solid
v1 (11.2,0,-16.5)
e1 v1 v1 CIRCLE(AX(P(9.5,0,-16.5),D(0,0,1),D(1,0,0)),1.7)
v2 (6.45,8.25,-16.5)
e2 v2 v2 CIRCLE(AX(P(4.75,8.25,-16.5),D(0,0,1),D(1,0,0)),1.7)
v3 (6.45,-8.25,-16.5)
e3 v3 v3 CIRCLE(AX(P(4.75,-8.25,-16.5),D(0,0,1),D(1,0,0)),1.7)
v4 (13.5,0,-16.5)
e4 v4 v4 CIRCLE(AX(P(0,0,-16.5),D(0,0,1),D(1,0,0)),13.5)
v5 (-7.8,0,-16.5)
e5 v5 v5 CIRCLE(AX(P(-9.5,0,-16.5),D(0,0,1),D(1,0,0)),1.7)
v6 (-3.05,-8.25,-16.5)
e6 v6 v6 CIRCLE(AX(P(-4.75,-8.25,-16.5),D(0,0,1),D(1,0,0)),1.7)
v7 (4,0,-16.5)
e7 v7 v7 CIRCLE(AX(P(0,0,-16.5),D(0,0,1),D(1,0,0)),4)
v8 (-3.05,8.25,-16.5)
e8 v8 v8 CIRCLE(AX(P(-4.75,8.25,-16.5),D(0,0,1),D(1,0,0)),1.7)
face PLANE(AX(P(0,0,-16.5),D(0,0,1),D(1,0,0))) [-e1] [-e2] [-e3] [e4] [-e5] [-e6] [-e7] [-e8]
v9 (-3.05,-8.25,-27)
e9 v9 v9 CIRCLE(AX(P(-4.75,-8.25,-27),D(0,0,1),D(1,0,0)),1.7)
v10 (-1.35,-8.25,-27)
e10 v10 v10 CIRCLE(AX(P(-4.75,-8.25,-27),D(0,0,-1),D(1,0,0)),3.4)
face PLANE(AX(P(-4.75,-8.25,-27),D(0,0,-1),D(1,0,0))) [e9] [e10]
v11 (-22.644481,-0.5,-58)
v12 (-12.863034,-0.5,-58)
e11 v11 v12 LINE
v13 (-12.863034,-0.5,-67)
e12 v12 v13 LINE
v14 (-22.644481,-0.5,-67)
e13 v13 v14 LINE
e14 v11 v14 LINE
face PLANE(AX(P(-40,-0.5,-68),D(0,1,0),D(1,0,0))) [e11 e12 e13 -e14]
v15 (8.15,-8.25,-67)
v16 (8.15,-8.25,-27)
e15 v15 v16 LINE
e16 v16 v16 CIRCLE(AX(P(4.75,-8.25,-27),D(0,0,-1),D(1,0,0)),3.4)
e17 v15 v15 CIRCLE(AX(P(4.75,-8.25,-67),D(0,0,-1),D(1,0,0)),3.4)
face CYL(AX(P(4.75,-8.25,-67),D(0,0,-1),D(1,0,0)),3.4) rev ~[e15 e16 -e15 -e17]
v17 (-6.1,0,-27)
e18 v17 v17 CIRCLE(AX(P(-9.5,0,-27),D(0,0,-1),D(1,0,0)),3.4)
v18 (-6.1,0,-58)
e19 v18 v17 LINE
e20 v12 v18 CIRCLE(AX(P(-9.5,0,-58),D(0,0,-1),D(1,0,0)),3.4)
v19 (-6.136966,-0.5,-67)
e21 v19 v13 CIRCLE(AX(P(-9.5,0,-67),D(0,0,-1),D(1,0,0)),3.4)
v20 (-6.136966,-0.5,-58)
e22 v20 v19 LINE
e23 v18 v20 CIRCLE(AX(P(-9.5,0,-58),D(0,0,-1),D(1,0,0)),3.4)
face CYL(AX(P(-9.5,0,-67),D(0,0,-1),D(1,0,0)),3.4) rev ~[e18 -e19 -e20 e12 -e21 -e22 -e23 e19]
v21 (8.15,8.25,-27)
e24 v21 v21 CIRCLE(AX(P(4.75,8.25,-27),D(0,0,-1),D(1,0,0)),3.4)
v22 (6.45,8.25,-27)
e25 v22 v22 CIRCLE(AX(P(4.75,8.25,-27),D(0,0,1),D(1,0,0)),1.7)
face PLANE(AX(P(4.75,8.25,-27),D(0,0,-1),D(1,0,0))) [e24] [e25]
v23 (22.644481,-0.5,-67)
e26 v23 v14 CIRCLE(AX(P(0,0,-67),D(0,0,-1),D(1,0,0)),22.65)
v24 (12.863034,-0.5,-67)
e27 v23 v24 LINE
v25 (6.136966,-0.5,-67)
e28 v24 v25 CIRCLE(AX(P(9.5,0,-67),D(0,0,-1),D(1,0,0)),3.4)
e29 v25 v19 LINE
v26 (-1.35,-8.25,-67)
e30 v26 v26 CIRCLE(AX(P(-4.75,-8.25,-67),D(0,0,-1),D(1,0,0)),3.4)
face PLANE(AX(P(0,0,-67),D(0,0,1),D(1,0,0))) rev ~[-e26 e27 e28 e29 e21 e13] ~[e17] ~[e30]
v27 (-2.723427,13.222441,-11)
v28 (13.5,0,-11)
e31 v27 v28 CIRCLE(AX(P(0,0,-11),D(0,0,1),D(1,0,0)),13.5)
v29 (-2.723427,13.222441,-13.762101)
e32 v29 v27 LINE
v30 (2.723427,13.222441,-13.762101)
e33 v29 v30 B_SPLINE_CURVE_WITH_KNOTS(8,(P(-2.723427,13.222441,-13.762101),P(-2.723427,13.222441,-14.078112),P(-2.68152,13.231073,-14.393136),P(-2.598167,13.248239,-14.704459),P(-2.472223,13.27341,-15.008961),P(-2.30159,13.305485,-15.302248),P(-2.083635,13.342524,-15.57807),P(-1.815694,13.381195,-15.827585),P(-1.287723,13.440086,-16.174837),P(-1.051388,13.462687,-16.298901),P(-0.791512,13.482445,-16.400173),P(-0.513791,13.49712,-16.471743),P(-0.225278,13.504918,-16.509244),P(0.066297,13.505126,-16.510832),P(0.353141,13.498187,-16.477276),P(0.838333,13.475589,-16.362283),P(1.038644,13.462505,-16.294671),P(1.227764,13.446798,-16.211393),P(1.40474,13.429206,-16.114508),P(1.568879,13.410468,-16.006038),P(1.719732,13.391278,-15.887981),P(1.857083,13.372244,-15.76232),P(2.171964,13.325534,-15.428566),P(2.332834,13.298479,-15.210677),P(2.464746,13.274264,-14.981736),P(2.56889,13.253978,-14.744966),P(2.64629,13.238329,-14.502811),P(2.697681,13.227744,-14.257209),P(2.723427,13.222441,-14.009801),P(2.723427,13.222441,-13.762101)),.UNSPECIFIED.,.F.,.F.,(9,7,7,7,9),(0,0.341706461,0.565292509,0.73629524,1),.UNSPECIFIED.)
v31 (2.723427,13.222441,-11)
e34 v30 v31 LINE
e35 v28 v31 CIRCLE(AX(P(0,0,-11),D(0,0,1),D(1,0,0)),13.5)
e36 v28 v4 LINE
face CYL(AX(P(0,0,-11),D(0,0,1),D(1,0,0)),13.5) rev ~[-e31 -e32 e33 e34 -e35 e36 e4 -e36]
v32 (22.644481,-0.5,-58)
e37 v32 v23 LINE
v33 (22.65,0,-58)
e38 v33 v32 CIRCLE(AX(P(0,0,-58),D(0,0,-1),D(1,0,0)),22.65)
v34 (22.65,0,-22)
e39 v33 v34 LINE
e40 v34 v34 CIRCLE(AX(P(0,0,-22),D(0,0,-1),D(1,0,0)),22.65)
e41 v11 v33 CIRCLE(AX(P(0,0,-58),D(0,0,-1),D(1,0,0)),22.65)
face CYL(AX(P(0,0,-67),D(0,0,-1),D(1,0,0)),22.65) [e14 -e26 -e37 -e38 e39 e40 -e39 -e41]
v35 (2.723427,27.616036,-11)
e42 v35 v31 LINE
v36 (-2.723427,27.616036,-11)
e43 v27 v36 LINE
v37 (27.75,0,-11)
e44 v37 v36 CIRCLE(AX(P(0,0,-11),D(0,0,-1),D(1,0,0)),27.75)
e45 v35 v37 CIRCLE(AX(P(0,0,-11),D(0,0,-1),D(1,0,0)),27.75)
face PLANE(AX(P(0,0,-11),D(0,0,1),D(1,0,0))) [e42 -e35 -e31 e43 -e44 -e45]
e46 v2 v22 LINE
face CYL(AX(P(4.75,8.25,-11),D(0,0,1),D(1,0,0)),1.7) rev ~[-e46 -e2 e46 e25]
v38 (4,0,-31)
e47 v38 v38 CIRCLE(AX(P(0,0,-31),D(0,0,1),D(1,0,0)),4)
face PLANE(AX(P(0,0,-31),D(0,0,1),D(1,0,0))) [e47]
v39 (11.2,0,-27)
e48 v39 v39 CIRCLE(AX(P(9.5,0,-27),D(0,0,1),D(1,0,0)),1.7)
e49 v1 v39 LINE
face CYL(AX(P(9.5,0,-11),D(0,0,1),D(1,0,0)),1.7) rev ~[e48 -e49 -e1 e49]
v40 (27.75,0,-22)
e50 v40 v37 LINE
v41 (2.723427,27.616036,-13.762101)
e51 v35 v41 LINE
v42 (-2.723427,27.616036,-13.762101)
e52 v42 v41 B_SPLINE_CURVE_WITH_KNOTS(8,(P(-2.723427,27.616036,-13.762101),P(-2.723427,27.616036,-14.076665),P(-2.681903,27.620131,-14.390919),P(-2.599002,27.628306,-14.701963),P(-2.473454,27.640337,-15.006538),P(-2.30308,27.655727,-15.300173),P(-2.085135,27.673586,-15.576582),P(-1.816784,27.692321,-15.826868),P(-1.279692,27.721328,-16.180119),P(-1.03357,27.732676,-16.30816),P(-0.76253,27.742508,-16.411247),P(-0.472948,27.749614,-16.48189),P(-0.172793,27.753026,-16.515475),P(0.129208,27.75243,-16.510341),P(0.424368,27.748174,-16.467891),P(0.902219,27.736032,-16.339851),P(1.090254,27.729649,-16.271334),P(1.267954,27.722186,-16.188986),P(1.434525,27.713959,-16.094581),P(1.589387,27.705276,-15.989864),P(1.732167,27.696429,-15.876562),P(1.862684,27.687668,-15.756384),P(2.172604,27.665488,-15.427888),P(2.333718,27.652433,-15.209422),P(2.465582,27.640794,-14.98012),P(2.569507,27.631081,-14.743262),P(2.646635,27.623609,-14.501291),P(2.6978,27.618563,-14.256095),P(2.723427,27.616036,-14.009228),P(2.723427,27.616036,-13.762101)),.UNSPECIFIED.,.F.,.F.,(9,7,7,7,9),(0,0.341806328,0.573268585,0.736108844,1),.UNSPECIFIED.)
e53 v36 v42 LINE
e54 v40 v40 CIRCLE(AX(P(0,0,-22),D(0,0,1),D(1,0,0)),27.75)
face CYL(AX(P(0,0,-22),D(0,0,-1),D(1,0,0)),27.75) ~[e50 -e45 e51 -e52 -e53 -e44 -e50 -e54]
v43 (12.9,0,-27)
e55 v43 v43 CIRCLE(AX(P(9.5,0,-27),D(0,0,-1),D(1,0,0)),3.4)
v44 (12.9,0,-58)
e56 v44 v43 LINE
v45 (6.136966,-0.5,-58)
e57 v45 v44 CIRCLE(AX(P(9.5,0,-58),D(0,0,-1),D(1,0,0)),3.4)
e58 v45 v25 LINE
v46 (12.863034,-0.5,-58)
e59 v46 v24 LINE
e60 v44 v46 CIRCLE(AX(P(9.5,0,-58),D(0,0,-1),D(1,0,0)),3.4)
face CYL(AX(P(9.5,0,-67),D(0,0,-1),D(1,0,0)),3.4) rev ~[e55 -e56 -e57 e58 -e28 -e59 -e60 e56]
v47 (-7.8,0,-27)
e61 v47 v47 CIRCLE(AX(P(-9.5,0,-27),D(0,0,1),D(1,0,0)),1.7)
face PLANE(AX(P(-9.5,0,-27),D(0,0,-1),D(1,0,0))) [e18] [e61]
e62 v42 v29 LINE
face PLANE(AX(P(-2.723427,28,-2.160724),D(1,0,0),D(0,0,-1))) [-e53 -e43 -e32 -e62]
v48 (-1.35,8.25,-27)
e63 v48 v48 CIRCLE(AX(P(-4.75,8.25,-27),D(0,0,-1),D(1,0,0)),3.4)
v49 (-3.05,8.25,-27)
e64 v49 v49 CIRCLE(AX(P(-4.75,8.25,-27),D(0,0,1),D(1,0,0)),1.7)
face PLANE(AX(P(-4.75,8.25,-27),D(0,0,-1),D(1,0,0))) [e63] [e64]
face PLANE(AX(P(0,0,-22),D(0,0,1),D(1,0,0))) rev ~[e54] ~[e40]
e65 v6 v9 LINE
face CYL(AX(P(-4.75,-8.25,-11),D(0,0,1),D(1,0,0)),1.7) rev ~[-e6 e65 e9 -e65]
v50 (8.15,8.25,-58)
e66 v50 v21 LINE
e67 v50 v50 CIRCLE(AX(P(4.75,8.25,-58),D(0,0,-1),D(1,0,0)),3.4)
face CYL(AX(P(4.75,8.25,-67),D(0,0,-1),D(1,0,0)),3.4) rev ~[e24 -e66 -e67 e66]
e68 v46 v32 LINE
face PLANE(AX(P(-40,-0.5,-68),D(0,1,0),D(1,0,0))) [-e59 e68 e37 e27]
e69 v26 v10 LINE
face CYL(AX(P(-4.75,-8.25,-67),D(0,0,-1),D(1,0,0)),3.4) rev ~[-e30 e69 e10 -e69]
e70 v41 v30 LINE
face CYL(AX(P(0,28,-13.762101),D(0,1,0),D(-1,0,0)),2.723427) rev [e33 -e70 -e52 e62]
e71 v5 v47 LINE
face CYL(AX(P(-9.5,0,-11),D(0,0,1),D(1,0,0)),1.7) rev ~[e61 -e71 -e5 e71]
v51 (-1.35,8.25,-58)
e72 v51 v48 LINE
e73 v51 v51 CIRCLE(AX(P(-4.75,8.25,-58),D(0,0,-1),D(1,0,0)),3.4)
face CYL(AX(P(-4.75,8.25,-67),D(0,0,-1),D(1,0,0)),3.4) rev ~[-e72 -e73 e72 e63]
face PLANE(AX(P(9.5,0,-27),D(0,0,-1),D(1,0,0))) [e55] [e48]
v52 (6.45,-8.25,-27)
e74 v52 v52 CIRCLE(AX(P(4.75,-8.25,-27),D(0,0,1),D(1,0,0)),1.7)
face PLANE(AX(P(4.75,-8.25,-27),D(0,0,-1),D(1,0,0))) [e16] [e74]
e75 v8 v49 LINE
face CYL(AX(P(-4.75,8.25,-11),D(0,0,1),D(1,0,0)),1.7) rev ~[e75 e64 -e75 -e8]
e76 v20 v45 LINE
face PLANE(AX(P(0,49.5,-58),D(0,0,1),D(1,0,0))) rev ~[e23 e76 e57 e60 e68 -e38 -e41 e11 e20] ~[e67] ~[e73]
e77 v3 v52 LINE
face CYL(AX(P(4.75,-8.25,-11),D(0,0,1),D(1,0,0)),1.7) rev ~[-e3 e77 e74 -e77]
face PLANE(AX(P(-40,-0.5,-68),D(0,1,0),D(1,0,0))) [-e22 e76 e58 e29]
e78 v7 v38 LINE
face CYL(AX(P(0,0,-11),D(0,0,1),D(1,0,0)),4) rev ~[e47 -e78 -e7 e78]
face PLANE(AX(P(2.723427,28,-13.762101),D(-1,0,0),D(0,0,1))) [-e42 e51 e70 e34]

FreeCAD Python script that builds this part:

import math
import FreeCAD as App
import Part
import Sketcher
Q = App.Units.Quantity


def add_polygon(sketch, points):
    """Adds a closed chain of lines whose ends are joined by coincident constraints."""
    first, n = sketch.GeometryCount, len(points)
    for a, b in zip(points, points[1:] + points[:1]):
        sketch.addGeometry(Part.LineSegment(App.Vector(*a, 0), App.Vector(*b, 0)), False)
    for i in range(n):
        sketch.addConstraint(Sketcher.Constraint("Coincident", first + i, 2, first + (i + 1) % n, 1))

doc = App.newDocument("Part")
body = doc.addObject("PartDesign::Body", "Body")

sketch1 = body.newObject("Sketcher::SketchObject", "Sketch")
sketch1.AttachmentSupport = (doc.getObject("XY_Plane"), [""])
sketch1.MapMode = "FlatFace"
sketch1.AttachmentOffset = App.Placement(App.Vector(0, 0, -1), App.Rotation())
add_polygon(sketch1, [(-40, 99.5), (-40, -0.5), (40, -0.5), (40, 99.5)])
sketch1.addConstraint(Sketcher.Constraint("Vertical", 0))
sketch1.addConstraint(Sketcher.Constraint("Horizontal", 1))
sketch1.addConstraint(Sketcher.Constraint("Vertical", 2))
sketch1.addConstraint(Sketcher.Constraint("Horizontal", 3))
sketch1.addConstraint(Sketcher.Constraint("DistanceX", 1, 1, 1, 2, Q("80 mm")))
sketch1.addConstraint(Sketcher.Constraint("DistanceY", 0, 2, 0, 1, Q("100 mm")))
sketch1.addConstraint(Sketcher.Constraint("DistanceX", 0, 2, -1, 1, Q("40 mm")))
sketch1.addConstraint(Sketcher.Constraint("DistanceY", 0, 2, -1, 1, Q("0.5 mm")))
pad1 = body.newObject("PartDesign::Pad", "Pad")
pad1.Profile = sketch1
pad1.Length = 10
body2 = doc.addObject("PartDesign::Body", "Body001")

sketch2 = body2.newObject("Sketcher::SketchObject", "Sketch001")
sketch2.AttachmentSupport = (doc.getObject("XY_Plane001"), [""])
sketch2.MapMode = "FlatFace"
add_polygon(sketch2, [(-5, 11.536842), (-5, 1.536842), (5, 1.536842), (5, 11.536842)])
sketch2.addConstraint(Sketcher.Constraint("Vertical", 0))
sketch2.addConstraint(Sketcher.Constraint("Horizontal", 1))
sketch2.addConstraint(Sketcher.Constraint("Vertical", 2))
sketch2.addConstraint(Sketcher.Constraint("Horizontal", 3))
sketch2.addConstraint(Sketcher.Constraint("Equal", 3, 0))
sketch2.addConstraint(Sketcher.Constraint("DistanceX", 1, 1, 1, 2, Q("10 mm")))
sketch2.addConstraint(Sketcher.Constraint("DistanceX", 0, 2, -1, 1, Q("5 mm")))
sketch2.addConstraint(Sketcher.Constraint("DistanceY", -1, 1, 0, 2, Q("1.536842 mm")))
pad2 = body2.newObject("PartDesign::Pad", "Pad001")
pad2.Profile = sketch2
pad2.Length = 10.8
body3 = doc.addObject("PartDesign::Body", "Body002")

sketch3 = body3.newObject("Sketcher::SketchObject", "Sketch002")
sketch3.AttachmentSupport = (doc.getObject("XY_Plane002"), [""])
sketch3.MapMode = "FlatFace"
sketch3.addGeometry(Part.Circle(App.Vector(0, 0, 0), App.Vector(0, 0, 1), 2.15), False)
sketch3.addConstraint(Sketcher.Constraint("Coincident", 0, 3, -1, 1))
sketch3.addConstraint(Sketcher.Constraint("Diameter", 0, Q("4.3 mm")))
pad3 = body3.newObject("PartDesign::Pad", "Pad002")
pad3.Profile = sketch3
pad3.Length = 10.8
doc.recompute()

boolean = body3.newObject("PartDesign::Boolean", "Boolean")
boolean.Type = "Cut"
boolean.addObjects([body2])
body4 = doc.addObject("PartDesign::Body", "Body003")
doc.recompute()

body3.Placement = App.Placement(App.Vector(0, 0, 49.2), App.Rotation(App.Vector(0, 0, 1), 0))
boolean2 = body4.newObject("PartDesign::Boolean", "Boolean001")
boolean2.Type = "Fuse"
boolean2.addObjects([body3])
body5 = doc.addObject("PartDesign::Body", "Body004")

sketch4 = body5.newObject("Sketcher::SketchObject", "Sketch003")
sketch4.AttachmentSupport = (doc.getObject("XY_Plane004"), [""])
sketch4.MapMode = "FlatFace"
sketch4.addGeometry(Part.Circle(App.Vector(0, 0, 0), App.Vector(0, 0, 1), 22.75), False)
sketch4.addConstraint(Sketcher.Constraint("Coincident", 0, 3, -1, 1))
sketch4.addConstraint(Sketcher.Constraint("Diameter", 0, Q("45.5 mm")))
pad4 = body5.newObject("PartDesign::Pad", "Pad003")
pad4.Profile = sketch4
pad4.Length = 60
body6 = doc.addObject("PartDesign::Body", "Body005")

sketch5 = body6.newObject("Sketcher::SketchObject", "Sketch004")
sketch5.AttachmentSupport = (doc.getObject("XY_Plane005"), [""])
sketch5.MapMode = "FlatFace"
sketch5.AttachmentOffset = App.Placement(App.Vector(0, 0, 45), App.Rotation())
sketch5.addGeometry(Part.Circle(App.Vector(0, 0, 0), App.Vector(0, 0, 1), 27.75), False)
sketch5.addConstraint(Sketcher.Constraint("Coincident", 0, 3, -1, 1))
sketch5.addConstraint(Sketcher.Constraint("Diameter", 0, Q("55.5 mm")))
pad5 = body6.newObject("PartDesign::Pad", "Pad004")
pad5.Profile = sketch5
pad5.Length = 15
doc.recompute()

boolean3 = body6.newObject("PartDesign::Boolean", "Boolean002")
boolean3.Type = "Fuse"
boolean3.addObjects([body5])
doc.recompute()

boolean4 = body6.newObject("PartDesign::Boolean", "Boolean003")
boolean4.Type = "Cut"
boolean4.addObjects([body4])
doc.recompute()

boolean5 = body6.newObject("PartDesign::Boolean", "Boolean004")
boolean5.Type = "Cut"
boolean5.addObjects([body])
body7 = doc.addObject("PartDesign::Body", "Body006")
doc.recompute()

body6.Placement = App.Placement(App.Vector(135, 0, 0), App.Rotation(App.Vector(0, 0, 1), 0))
boolean6 = body7.newObject("PartDesign::Boolean", "Boolean005")
boolean6.Type = "Fuse"
boolean6.addObjects([body6])
body8 = doc.addObject("PartDesign::Body", "Body007")
doc.recompute()

body7.Placement = App.Placement(App.Vector(-135, 0, 0), App.Rotation(App.Vector(0, 0, 1), 0))
boolean7 = body8.newObject("PartDesign::Boolean", "Boolean006")
boolean7.Type = "Fuse"
boolean7.addObjects([body7])

sketch6 = body8.newObject("Sketcher::SketchObject", "Sketch005")
sketch6.AttachmentSupport = (doc.getObject("XY_Plane007"), [""])
sketch6.MapMode = "FlatFace"
sketch6.AttachmentOffset = App.Placement(App.Vector(0, 0, 60), App.Rotation())
sketch6.addGeometry(Part.Circle(App.Vector(0, 0, 0), App.Vector(0, 0, 1), 48.85367), False)
sketch6.addConstraint(Sketcher.Constraint("Coincident", 0, 3, -1, 1))
sketch6.addConstraint(Sketcher.Constraint("Diameter", 0, Q("97.70734 mm")))
pocket1 = body8.newObject("PartDesign::Pocket", "Pocket")
pocket1.Profile = sketch6
pocket1.Length = 4

sketch7 = body8.newObject("Sketcher::SketchObject", "Sketch006")
sketch7.AttachmentSupport = (doc.getObject("XY_Plane007"), [""])
sketch7.MapMode = "FlatFace"
sketch7.AttachmentOffset = App.Placement(App.Vector(0, 0, 56), App.Rotation())
sketch7.addGeometry(Part.Circle(App.Vector(0, 0, 0), App.Vector(0, 0, 1), 13.5), False)
sketch7.addConstraint(Sketcher.Constraint("Coincident", 0, 3, -1, 1))
sketch7.addConstraint(Sketcher.Constraint("Diameter", 0, Q("27 mm")))
pocket2 = body8.newObject("PartDesign::Pocket", "Pocket001")
pocket2.Profile = sketch7
pocket2.Length = 5.5

sketch8 = body8.newObject("Sketcher::SketchObject", "Sketch007")
sketch8.AttachmentSupport = (doc.getObject("XY_Plane007"), [""])
sketch8.MapMode = "FlatFace"
sketch8.AttachmentOffset = App.Placement(App.Vector(0, 0, 56), App.Rotation())
sketch8.addGeometry(Part.Circle(App.Vector(0, 0, 0), App.Vector(0, 0, 1), 4), False)
sketch8.addConstraint(Sketcher.Constraint("Coincident", 0, 3, -1, 1))
sketch8.addConstraint(Sketcher.Constraint("Diameter", 0, Q("8 mm")))
pocket3 = body8.newObject("PartDesign::Pocket", "Pocket002")
pocket3.Profile = sketch8
pocket3.Length = 20

sketch9 = body8.newObject("Sketcher::SketchObject", "Sketch008")
sketch9.AttachmentSupport = (doc.getObject("XY_Plane007"), [""])
sketch9.MapMode = "FlatFace"
sketch9.AttachmentOffset = App.Placement(App.Vector(0, 0, 56), App.Rotation())
sketch9.addGeometry(Part.Circle(App.Vector(-4.75, 8.25, 0), App.Vector(0, 0, 1), 1.7), False)
sketch9.addGeometry(Part.Circle(App.Vector(4.75, 8.25, 0), App.Vector(0, 0, 1), 1.7), False)
sketch9.addGeometry(Part.Circle(App.Vector(4.75, -8.25, 0), App.Vector(0, 0, 1), 1.7), False)
sketch9.addGeometry(Part.Circle(App.Vector(-4.75, -8.25, 0), App.Vector(0, 0, 1), 1.7), False)
sketch9.addGeometry(Part.Circle(App.Vector(-9.5, 0, 0), App.Vector(0, 0, 1), 1.7), False)
sketch9.addGeometry(Part.Circle(App.Vector(9.5, 0, 0), App.Vector(0, 0, 1), 1.7), False)
sketch9.addConstraint(Sketcher.Constraint("Equal", 0, 1))
sketch9.addConstraint(Sketcher.Constraint("Equal", 1, 2))
sketch9.addConstraint(Sketcher.Constraint("Equal", 2, 3))
sketch9.addConstraint(Sketcher.Constraint("Equal", 3, 4))
sketch9.addConstraint(Sketcher.Constraint("Equal", 4, 5))
sketch9.addConstraint(Sketcher.Constraint("Symmetric", 0, 3, 2, 3, -1, 1))
sketch9.addConstraint(Sketcher.Constraint("Symmetric", 1, 3, 3, 3, -1, 1))
sketch9.addConstraint(Sketcher.Constraint("Symmetric", 4, 3, 5, 3, -1, 1))
sketch9.addConstraint(Sketcher.Constraint("Symmetric", 0, 3, 1, 3, -2))
sketch9.addConstraint(Sketcher.Constraint("PointOnObject", 4, 3, -1))
sketch9.addConstraint(Sketcher.Constraint("Diameter", 0, Q("3.4 mm")))
sketch9.addConstraint(Sketcher.Constraint("DistanceX", 4, 3, 5, 3, Q("19 mm")))
sketch9.addConstraint(Sketcher.Constraint("DistanceX", 0, 3, 1, 3, Q("9.5 mm")))
sketch9.addConstraint(Sketcher.Constraint("DistanceY", 2, 3, 1, 3, Q("16.5 mm")))
pocket4 = body8.newObject("PartDesign::Pocket", "Pocket003")
pocket4.Profile = sketch9
pocket4.Type = "ThroughAll"

sketch10 = body8.newObject("Sketcher::SketchObject", "Sketch009")
sketch10.AttachmentSupport = (doc.getObject("XY_Plane007"), [""])
sketch10.MapMode = "FlatFace"
sketch10.addGeometry(Part.Circle(App.Vector(-4.75, -8.25, 0), App.Vector(0, 0, 1), 3.4), False)
sketch10.addGeometry(Part.Circle(App.Vector(4.75, -8.25, 0), App.Vector(0, 0, 1), 3.4), False)
sketch10.addGeometry(Part.Circle(App.Vector(9.5, 0, 0), App.Vector(0, 0, 1), 3.4), False)
sketch10.addGeometry(Part.Circle(App.Vector(-9.5, 0, 0), App.Vector(0, 0, 1), 3.4), False)
sketch10.addGeometry(Part.Circle(App.Vector(-4.75, 8.25, 0), App.Vector(0, 0, 1), 3.4), False)
sketch10.addGeometry(Part.Circle(App.Vector(4.75, 8.25, 0), App.Vector(0, 0, 1), 3.4), False)
sketch10.addConstraint(Sketcher.Constraint("Equal", 0, 1))
sketch10.addConstraint(Sketcher.Constraint("Equal", 1, 2))
sketch10.addConstraint(Sketcher.Constraint("Equal", 2, 3))
sketch10.addConstraint(Sketcher.Constraint("Equal", 3, 4))
sketch10.addConstraint(Sketcher.Constraint("Equal", 4, 5))
sketch10.addConstraint(Sketcher.Constraint("Symmetric", 2, 3, 3, 3, -1, 1))
sketch10.addConstraint(Sketcher.Constraint("Symmetric", 1, 3, 4, 3, -1, 1))
sketch10.addConstraint(Sketcher.Constraint("Symmetric", 0, 3, 5, 3, -1, 1))
sketch10.addConstraint(Sketcher.Constraint("Symmetric", 0, 3, 1, 3, -2))
sketch10.addConstraint(Sketcher.Constraint("PointOnObject", 2, 3, -1))
sketch10.addConstraint(Sketcher.Constraint("Diameter", 0, Q("6.8 mm")))
sketch10.addConstraint(Sketcher.Constraint("DistanceX", 3, 3, 2, 3, Q("19 mm")))
sketch10.addConstraint(Sketcher.Constraint("DistanceX", 0, 3, 1, 3, Q("9.5 mm")))
sketch10.addConstraint(Sketcher.Constraint("DistanceY", 0, 3, 4, 3, Q("16.5 mm")))
pocket5 = body8.newObject("PartDesign::Pocket", "Pocket004")
pocket5.Profile = sketch10
pocket5.Length = 40
pocket5.Reversed = True

sketch11 = body8.newObject("Sketcher::SketchObject", "Sketch010")
sketch11.AttachmentSupport = (doc.getObject("XZ_Plane007"), [""])
sketch11.MapMode = "FlatFace"
sketch11.AttachmentOffset = App.Placement(App.Vector(0, 0, -28), App.Rotation())
sketch11.addGeometry(Part.ArcOfCircle(Part.Circle(App.Vector(0, 53.237899, 0), App.Vector(0, 0, 1), 2.723427), math.radians(180), math.radians(360)), False)
sketch11.addGeometry(Part.LineSegment(App.Vector(2.723427, 53.237899, 0), App.Vector(2.723427, 64.839276, 0)), False)
sketch11.addGeometry(Part.ArcOfCircle(Part.Circle(App.Vector(0, 64.839276, 0), App.Vector(0, 0, 1), 2.723427), math.radians(0), math.radians(180)), False)
sketch11.addGeometry(Part.LineSegment(App.Vector(-2.723427, 64.839276, 0), App.Vector(-2.723427, 53.237899, 0)), False)
sketch11.addConstraint(Sketcher.Constraint("Tangent", 0, 2, 1, 1))
sketch11.addConstraint(Sketcher.Constraint("Tangent", 1, 2, 2, 1))
sketch11.addConstraint(Sketcher.Constraint("Tangent", 2, 2, 3, 1))
sketch11.addConstraint(Sketcher.Constraint("Tangent", 3, 2, 0, 1))
sketch11.addConstraint(Sketcher.Constraint("Vertical", 1))
sketch11.addConstraint(Sketcher.Constraint("Vertical", 3))
sketch11.addConstraint(Sketcher.Constraint("PointOnObject", 0, 3, -2))
sketch11.addConstraint(Sketcher.Constraint("Radius", 0, Q("2.723427 mm")))
sketch11.addConstraint(Sketcher.Constraint("DistanceY", -1, 1, 0, 3, Q("53.237899 mm")))
sketch11.addConstraint(Sketcher.Constraint("DistanceY", 1, 1, 1, 2, Q("11.601377 mm")))
pocket6 = body8.newObject("PartDesign::Pocket", "Pocket005")
pocket6.Profile = sketch11
pocket6.Length = 19
pocket6.Reversed = True

sketch12 = body8.newObject("Sketcher::SketchObject", "Sketch011")
sketch12.AttachmentSupport = (doc.getObject("XY_Plane007"), [""])
sketch12.MapMode = "FlatFace"
sketch12.addGeometry(Part.Circle(App.Vector(0, 0, 0), App.Vector(0, 0, 1), 33.40384), False)
sketch12.addGeometry(Part.Circle(App.Vector(0, 0, 0), App.Vector(0, 0, 1), 22.65), False)
sketch12.addConstraint(Sketcher.Constraint("Coincident", 0, 3, -1, 1))
sketch12.addConstraint(Sketcher.Constraint("Coincident", 1, 3, -1, 1))
sketch12.addConstraint(Sketcher.Constraint("Diameter", 1, Q("45.3 mm")))
sketch12.addConstraint(Sketcher.Constraint("Diameter", 0, Q("66.80768 mm")))
pocket7 = body8.newObject("PartDesign::Pocket", "Pocket006")
pocket7.Profile = sketch12
pocket7.Length = 45
pocket7.Reversed = True
body9 = doc.addObject("PartDesign::Body", "Body008")
doc.recompute()

body8.Placement = App.Placement(App.Vector(0, 0, -67), App.Rotation(App.Vector(0, 0, 1), 0))
boolean8 = body9.newObject("PartDesign::Boolean", "Boolean007")
boolean8.Type = "Fuse"
boolean8.addObjects([body8])

doc.recompute()
